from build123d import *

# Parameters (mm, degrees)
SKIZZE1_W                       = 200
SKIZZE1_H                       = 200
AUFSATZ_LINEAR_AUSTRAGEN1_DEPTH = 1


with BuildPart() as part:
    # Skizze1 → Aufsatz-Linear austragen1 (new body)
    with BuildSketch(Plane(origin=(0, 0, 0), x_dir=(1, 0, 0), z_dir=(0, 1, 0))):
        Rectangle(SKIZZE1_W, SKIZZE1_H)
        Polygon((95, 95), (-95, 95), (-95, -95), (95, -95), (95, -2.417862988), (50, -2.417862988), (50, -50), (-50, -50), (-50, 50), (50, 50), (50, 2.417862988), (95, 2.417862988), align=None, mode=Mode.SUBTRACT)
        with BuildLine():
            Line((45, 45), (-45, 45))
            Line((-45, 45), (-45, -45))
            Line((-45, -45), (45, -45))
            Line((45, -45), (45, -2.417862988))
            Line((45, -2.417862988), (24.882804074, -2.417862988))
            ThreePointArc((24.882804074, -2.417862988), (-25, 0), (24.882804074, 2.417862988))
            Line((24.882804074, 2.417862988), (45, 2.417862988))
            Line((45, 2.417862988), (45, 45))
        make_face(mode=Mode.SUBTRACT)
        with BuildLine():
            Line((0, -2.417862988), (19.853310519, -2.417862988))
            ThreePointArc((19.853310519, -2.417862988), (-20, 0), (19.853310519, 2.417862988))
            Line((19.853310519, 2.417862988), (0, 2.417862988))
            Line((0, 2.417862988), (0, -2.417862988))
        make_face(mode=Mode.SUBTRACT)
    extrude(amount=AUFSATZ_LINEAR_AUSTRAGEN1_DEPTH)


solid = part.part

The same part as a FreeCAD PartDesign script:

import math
import FreeCAD as App
import Part
import Sketcher

doc = App.newDocument("Part")
params = doc.addObject("Spreadsheet::Sheet", "Params")
for row, (alias, value) in enumerate([
    ("sketch1_radius", "20 mm"),
    ("sketch1_radius2", "25 mm"),
    ("sketch1_width", "200 mm"),
    ("sketch1_width2", "90 mm"),
    ("sketch1_width3", "190 mm"),
    ("pad1_length", "1 mm"),
], start=1):
    params.set(f"A{row}", alias)
    params.set(f"B{row}", "=" + value)
    params.setAlias(f"B{row}", alias)

body = doc.addObject("PartDesign::Body", "Body")

sketch1 = doc.addObject("Sketcher::SketchObject", "Sketch")
body.addObject(sketch1)
sketch1.AttachmentSupport = (doc.XZ_Plane, [""])
sketch1.MapMode = "FlatFace"
sketch1.addGeometry([
    Part.LineSegment(App.Vector(-100, -100, 0), App.Vector(-100, 100, 0)),
    Part.LineSegment(App.Vector(-100, 100, 0), App.Vector(100, 100, 0)),
    Part.LineSegment(App.Vector(100, 100, 0), App.Vector(100, -100, 0)),
    Part.LineSegment(App.Vector(100, -100, 0), App.Vector(-100, -100, 0)),
    Part.LineSegment(App.Vector(0, -2.417863, 0), App.Vector(0, 2.417863, 0)),
    Part.LineSegment(App.Vector(0, 2.417863, 0), App.Vector(19.853311, 2.417863, 0)),
    Part.ArcOfCircle(Part.Circle(App.Vector(0, 0, 0), App.Vector(0, 0, 1), 20), math.radians(6.943652), math.radians(353.056348)),
    Part.LineSegment(App.Vector(19.853311, -2.417863, 0), App.Vector(0, -2.417863, 0)),
    Part.LineSegment(App.Vector(-45, -45, 0), App.Vector(45, -45, 0)),
    Part.LineSegment(App.Vector(45, -45, 0), App.Vector(45, -2.417863, 0)),
    Part.LineSegment(App.Vector(45, -2.417863, 0), App.Vector(24.882804, -2.417863, 0)),
    Part.ArcOfCircle(Part.Circle(App.Vector(0, 0, 0), App.Vector(0, 0, 1), 25), math.radians(5.550009), math.radians(354.449991)),
    Part.LineSegment(App.Vector(24.882804, 2.417863, 0), App.Vector(45, 2.417863, 0)),
    Part.LineSegment(App.Vector(45, 2.417863, 0), App.Vector(45, 45, 0)),
    Part.LineSegment(App.Vector(45, 45, 0), App.Vector(-45, 45, 0)),
    Part.LineSegment(App.Vector(-45, 45, 0), App.Vector(-45, -45, 0)),
    Part.LineSegment(App.Vector(-95, -95, 0), App.Vector(95, -95, 0)),
    Part.LineSegment(App.Vector(95, -95, 0), App.Vector(95, -2.417863, 0)),
    Part.LineSegment(App.Vector(95, -2.417863, 0), App.Vector(50, -2.417863, 0)),
    Part.LineSegment(App.Vector(50, -2.417863, 0), App.Vector(50, -50, 0)),
    Part.LineSegment(App.Vector(50, -50, 0), App.Vector(-50, -50, 0)),
    Part.LineSegment(App.Vector(-50, -50, 0), App.Vector(-50, 50, 0)),
    Part.LineSegment(App.Vector(-50, 50, 0), App.Vector(50, 50, 0)),
    Part.LineSegment(App.Vector(50, 50, 0), App.Vector(50, 2.417863, 0)),
    Part.LineSegment(App.Vector(50, 2.417863, 0), App.Vector(95, 2.417863, 0)),
    Part.LineSegment(App.Vector(95, 2.417863, 0), App.Vector(95, 95, 0)),
    Part.LineSegment(App.Vector(95, 95, 0), App.Vector(-95, 95, 0)),
    Part.LineSegment(App.Vector(-95, 95, 0), App.Vector(-95, -95, 0)),
], False)
sketch1.addConstraint([
    Sketcher.Constraint("Coincident", 0, 2, 1, 1),
    Sketcher.Constraint("Coincident", 1, 2, 2, 1),
    Sketcher.Constraint("Coincident", 2, 2, 3, 1),
    Sketcher.Constraint("Coincident", 3, 2, 0, 1),
    Sketcher.Constraint("Coincident", 4, 2, 5, 1),
    Sketcher.Constraint("Coincident", 5, 2, 6, 1),
    Sketcher.Constraint("Coincident", 6, 2, 7, 1),
    Sketcher.Constraint("Coincident", 7, 2, 4, 1),
    Sketcher.Constraint("Coincident", 8, 2, 9, 1),
    Sketcher.Constraint("Coincident", 9, 2, 10, 1),
    Sketcher.Constraint("Coincident", 10, 2, 11, 2),
    Sketcher.Constraint("Coincident", 11, 1, 12, 1),
    Sketcher.Constraint("Coincident", 12, 2, 13, 1),
    Sketcher.Constraint("Coincident", 13, 2, 14, 1),
    Sketcher.Constraint("Coincident", 14, 2, 15, 1),
    Sketcher.Constraint("Coincident", 15, 2, 8, 1),
    Sketcher.Constraint("Coincident", 16, 2, 17, 1),
    Sketcher.Constraint("Coincident", 17, 2, 18, 1),
    Sketcher.Constraint("Coincident", 18, 2, 19, 1),
    Sketcher.Constraint("Coincident", 19, 2, 20, 1),
    Sketcher.Constraint("Coincident", 20, 2, 21, 1),
    Sketcher.Constraint("Coincident", 21, 2, 22, 1),
    Sketcher.Constraint("Coincident", 22, 2, 23, 1),
    Sketcher.Constraint("Coincident", 23, 2, 24, 1),
    Sketcher.Constraint("Coincident", 24, 2, 25, 1),
    Sketcher.Constraint("Coincident", 25, 2, 26, 1),
    Sketcher.Constraint("Coincident", 26, 2, 27, 1),
    Sketcher.Constraint("Coincident", 27, 2, 16, 1),
    Sketcher.Constraint("Vertical", 0),
    Sketcher.Constraint("Horizontal", 1),
    Sketcher.Constraint("Vertical", 2),
    Sketcher.Constraint("Horizontal", 3),
    Sketcher.Constraint("Vertical", 4),
    Sketcher.Constraint("Horizontal", 5),
    Sketcher.Constraint("Horizontal", 7),
    Sketcher.Constraint("Horizontal", 8),
    Sketcher.Constraint("Vertical", 9),
    Sketcher.Constraint("Horizontal", 10),
    Sketcher.Constraint("Horizontal", 12),
    Sketcher.Constraint("Vertical", 13),
    Sketcher.Constraint("Horizontal", 14),
    Sketcher.Constraint("Vertical", 15),
    Sketcher.Constraint("Horizontal", 16),
    Sketcher.Constraint("Vertical", 17),
    Sketcher.Constraint("Horizontal", 18),
    Sketcher.Constraint("Vertical", 19),
    Sketcher.Constraint("Horizontal", 20),
    Sketcher.Constraint("Vertical", 21),
    Sketcher.Constraint("Horizontal", 22),
    Sketcher.Constraint("Vertical", 23),
    Sketcher.Constraint("Horizontal", 24),
    Sketcher.Constraint("Vertical", 25),
    Sketcher.Constraint("Horizontal", 26),
    Sketcher.Constraint("Vertical", 27),
    Sketcher.Constraint("Coincident", 6, 3, -1, 1),
    Sketcher.Constraint("Coincident", 11, 3, -1, 1),
    Sketcher.Constraint("Symmetric", 0, 2, 2, 2, -1, 1),
    Sketcher.Constraint("Symmetric", 4, 2, 7, 2, -1, 1),
    Sketcher.Constraint("Symmetric", 8, 2, 14, 2, -1, 1),
    Sketcher.Constraint("Symmetric", 19, 2, 21, 2, -1, 1),
    Sketcher.Constraint("Symmetric", 16, 2, 26, 2, -1, 1),
    Sketcher.Constraint("Symmetric", 9, 2, 12, 2, -1),
    Sketcher.Constraint("Symmetric", 18, 2, 23, 2, -1),
    Sketcher.Constraint("Horizontal", 7, 2, 9, 2),
    Sketcher.Constraint("Horizontal", 10, 2, 17, 2),
    Sketcher.Constraint("Vertical", 17, 2, 24, 2),
    Sketcher.Constraint("Equal", 3, 0),
    Sketcher.Constraint("Equal", 14, 15),
    Sketcher.Constraint("Equal", 22, 21),
    Sketcher.Constraint("Equal", 26, 27),
    Sketcher.Constraint("Radius", 6, 20.0),
    Sketcher.Constraint("Radius", 11, 25.0),
    Sketcher.Constraint("DistanceX", 1, 1, 1, 2, 200.0),
    Sketcher.Constraint("DistanceX", 8, 1, 8, 2, 90.0),
    Sketcher.Constraint("DistanceX", 16, 1, 16, 2, 190.0),
    Sketcher.Constraint("DistanceX", 18, 2, 18, 1, 45.0),
    Sketcher.Constraint("DistanceX", 5, 1, 5, 2, 19.853311),
])
sketch1.setExpression("Constraints[70]", "Params.sketch1_radius")
sketch1.setExpression("Constraints[71]", "Params.sketch1_radius2")
sketch1.setExpression("Constraints[72]", "Params.sketch1_width")
sketch1.setExpression("Constraints[73]", "Params.sketch1_width2")
sketch1.setExpression("Constraints[74]", "Params.sketch1_width3")
pad1 = doc.addObject("PartDesign::Pad", "Pad")
body.addObject(pad1)
pad1.Profile = sketch1
pad1.setExpression("Length", "Params.pad1_length")
pad1.Reversed = True

doc.recompute()
